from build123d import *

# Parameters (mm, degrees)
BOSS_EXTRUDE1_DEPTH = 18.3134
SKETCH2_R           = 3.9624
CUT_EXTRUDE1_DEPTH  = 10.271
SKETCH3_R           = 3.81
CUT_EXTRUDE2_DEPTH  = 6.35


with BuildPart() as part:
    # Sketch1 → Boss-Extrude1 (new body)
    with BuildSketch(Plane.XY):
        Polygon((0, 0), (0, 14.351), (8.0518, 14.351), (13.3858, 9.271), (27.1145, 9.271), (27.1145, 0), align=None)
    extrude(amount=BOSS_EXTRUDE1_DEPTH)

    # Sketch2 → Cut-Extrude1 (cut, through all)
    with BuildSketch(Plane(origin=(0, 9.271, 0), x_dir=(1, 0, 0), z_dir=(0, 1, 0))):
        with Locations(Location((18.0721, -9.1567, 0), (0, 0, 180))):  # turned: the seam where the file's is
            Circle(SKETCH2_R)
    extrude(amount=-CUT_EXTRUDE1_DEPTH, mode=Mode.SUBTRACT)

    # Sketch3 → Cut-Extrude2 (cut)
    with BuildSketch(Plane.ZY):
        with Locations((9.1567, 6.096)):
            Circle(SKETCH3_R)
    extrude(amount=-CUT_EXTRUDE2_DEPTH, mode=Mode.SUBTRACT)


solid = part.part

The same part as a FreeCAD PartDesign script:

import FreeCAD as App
import Part
import Sketcher
Q = App.Units.Quantity

doc = App.newDocument("Part")
body = doc.addObject("PartDesign::Body", "Body")

# Sketch on XY plane
sketch1 = body.newObject("Sketcher::SketchObject", "Sketch")
sketch1.AttachmentSupport = (doc.getObject("XY_Plane"), [""])
sketch1.MapMode = "FlatFace"
sketch1.addGeometry([
    Part.LineSegment(App.Vector(0, 14.351, 0), App.Vector(0, 0, 0)),  # 0
    Part.LineSegment(App.Vector(0, 0, 0), App.Vector(27.1145, 0, 0)),  # 1
    Part.LineSegment(App.Vector(27.1145, 0, 0), App.Vector(27.1145, 9.271, 0)),  # 2
    Part.LineSegment(App.Vector(27.1145, 9.271, 0), App.Vector(13.3858, 9.271, 0)),  # 3
    Part.LineSegment(App.Vector(13.3858, 9.271, 0), App.Vector(8.0518, 14.351, 0)),  # 4
    Part.LineSegment(App.Vector(8.0518, 14.351, 0), App.Vector(0, 14.351, 0)),  # 5
], False)
sketch1.addConstraint([
    Sketcher.Constraint("Coincident", 0, 2, 1, 1),
    Sketcher.Constraint("Coincident", 1, 2, 2, 1),
    Sketcher.Constraint("Coincident", 2, 2, 3, 1),
    Sketcher.Constraint("Coincident", 3, 2, 4, 1),
    Sketcher.Constraint("Coincident", 4, 2, 5, 1),
    Sketcher.Constraint("Coincident", 5, 2, 0, 1),
    Sketcher.Constraint("Vertical", 0),
    Sketcher.Constraint("Horizontal", 1),
    Sketcher.Constraint("Vertical", 2),
    Sketcher.Constraint("Horizontal", 3),
    Sketcher.Constraint("Horizontal", 5),
    Sketcher.Constraint("Coincident", 0, 2, -1, 1),
    Sketcher.Constraint("DistanceY", 3, 2, 4, 2, Q("0.2 in")),
    Sketcher.Constraint("Distance", 4, Q("0.29 in")),
    Sketcher.Constraint("DistanceX", 5, 2, 5, 1, Q("0.317 in")),
    Sketcher.Constraint("DistanceY", 0, 2, 0, 1, Q("0.565 in")),
    Sketcher.Constraint("DistanceX", 1, 1, 1, 2, Q("1.0675 in")),
])
pad1 = body.newObject("PartDesign::Pad", "Pad")
pad1.Profile = sketch1
pad1.Length = Q("0.721 in")

# Sketch on XZ plane
sketch2 = body.newObject("Sketcher::SketchObject", "Sketch001")
sketch2.AttachmentSupport = (doc.getObject("XZ_Plane"), [""])
sketch2.MapMode = "FlatFace"
sketch2.AttachmentOffset = App.Placement(App.Vector(0, 0, -0.365 * 25.4), App.Rotation())
sketch2.addGeometry(Part.Circle(App.Vector(18.0721, 9.1567, 0), App.Vector(0, 0, 1), 3.9624), False)
sketch2.addConstraint([
    Sketcher.Constraint("Diameter", 0, Q("0.312 in")),
    Sketcher.Constraint("DistanceX", -1, 1, 0, 3, Q("0.7115 in")),
    Sketcher.Constraint("DistanceY", -1, 1, 0, 3, Q("0.3605 in")),
])
pocket1 = body.newObject("PartDesign::Pocket", "Pocket")
pocket1.Profile = sketch2
pocket1.Type = "ThroughAll"
pocket1.Reversed = True

# Sketch on YZ plane
sketch3 = body.newObject("Sketcher::SketchObject", "Sketch002")
sketch3.AttachmentSupport = (doc.getObject("YZ_Plane"), [""])
sketch3.MapMode = "FlatFace"
sketch3.addGeometry(Part.Circle(App.Vector(6.096, 9.1567, 0), App.Vector(0, 0, 1), 3.81), False)
sketch3.addConstraint([
    Sketcher.Constraint("Diameter", 0, Q("0.3 in")),
    Sketcher.Constraint("DistanceX", -1, 1, 0, 3, Q("0.24 in")),
    Sketcher.Constraint("DistanceY", -1, 1, 0, 3, Q("0.3605 in")),
])
pocket2 = body.newObject("PartDesign::Pocket", "Pocket001")
pocket2.Profile = sketch3
pocket2.Length = Q("0.25 in")
pocket2.Reversed = True

doc.recompute()
